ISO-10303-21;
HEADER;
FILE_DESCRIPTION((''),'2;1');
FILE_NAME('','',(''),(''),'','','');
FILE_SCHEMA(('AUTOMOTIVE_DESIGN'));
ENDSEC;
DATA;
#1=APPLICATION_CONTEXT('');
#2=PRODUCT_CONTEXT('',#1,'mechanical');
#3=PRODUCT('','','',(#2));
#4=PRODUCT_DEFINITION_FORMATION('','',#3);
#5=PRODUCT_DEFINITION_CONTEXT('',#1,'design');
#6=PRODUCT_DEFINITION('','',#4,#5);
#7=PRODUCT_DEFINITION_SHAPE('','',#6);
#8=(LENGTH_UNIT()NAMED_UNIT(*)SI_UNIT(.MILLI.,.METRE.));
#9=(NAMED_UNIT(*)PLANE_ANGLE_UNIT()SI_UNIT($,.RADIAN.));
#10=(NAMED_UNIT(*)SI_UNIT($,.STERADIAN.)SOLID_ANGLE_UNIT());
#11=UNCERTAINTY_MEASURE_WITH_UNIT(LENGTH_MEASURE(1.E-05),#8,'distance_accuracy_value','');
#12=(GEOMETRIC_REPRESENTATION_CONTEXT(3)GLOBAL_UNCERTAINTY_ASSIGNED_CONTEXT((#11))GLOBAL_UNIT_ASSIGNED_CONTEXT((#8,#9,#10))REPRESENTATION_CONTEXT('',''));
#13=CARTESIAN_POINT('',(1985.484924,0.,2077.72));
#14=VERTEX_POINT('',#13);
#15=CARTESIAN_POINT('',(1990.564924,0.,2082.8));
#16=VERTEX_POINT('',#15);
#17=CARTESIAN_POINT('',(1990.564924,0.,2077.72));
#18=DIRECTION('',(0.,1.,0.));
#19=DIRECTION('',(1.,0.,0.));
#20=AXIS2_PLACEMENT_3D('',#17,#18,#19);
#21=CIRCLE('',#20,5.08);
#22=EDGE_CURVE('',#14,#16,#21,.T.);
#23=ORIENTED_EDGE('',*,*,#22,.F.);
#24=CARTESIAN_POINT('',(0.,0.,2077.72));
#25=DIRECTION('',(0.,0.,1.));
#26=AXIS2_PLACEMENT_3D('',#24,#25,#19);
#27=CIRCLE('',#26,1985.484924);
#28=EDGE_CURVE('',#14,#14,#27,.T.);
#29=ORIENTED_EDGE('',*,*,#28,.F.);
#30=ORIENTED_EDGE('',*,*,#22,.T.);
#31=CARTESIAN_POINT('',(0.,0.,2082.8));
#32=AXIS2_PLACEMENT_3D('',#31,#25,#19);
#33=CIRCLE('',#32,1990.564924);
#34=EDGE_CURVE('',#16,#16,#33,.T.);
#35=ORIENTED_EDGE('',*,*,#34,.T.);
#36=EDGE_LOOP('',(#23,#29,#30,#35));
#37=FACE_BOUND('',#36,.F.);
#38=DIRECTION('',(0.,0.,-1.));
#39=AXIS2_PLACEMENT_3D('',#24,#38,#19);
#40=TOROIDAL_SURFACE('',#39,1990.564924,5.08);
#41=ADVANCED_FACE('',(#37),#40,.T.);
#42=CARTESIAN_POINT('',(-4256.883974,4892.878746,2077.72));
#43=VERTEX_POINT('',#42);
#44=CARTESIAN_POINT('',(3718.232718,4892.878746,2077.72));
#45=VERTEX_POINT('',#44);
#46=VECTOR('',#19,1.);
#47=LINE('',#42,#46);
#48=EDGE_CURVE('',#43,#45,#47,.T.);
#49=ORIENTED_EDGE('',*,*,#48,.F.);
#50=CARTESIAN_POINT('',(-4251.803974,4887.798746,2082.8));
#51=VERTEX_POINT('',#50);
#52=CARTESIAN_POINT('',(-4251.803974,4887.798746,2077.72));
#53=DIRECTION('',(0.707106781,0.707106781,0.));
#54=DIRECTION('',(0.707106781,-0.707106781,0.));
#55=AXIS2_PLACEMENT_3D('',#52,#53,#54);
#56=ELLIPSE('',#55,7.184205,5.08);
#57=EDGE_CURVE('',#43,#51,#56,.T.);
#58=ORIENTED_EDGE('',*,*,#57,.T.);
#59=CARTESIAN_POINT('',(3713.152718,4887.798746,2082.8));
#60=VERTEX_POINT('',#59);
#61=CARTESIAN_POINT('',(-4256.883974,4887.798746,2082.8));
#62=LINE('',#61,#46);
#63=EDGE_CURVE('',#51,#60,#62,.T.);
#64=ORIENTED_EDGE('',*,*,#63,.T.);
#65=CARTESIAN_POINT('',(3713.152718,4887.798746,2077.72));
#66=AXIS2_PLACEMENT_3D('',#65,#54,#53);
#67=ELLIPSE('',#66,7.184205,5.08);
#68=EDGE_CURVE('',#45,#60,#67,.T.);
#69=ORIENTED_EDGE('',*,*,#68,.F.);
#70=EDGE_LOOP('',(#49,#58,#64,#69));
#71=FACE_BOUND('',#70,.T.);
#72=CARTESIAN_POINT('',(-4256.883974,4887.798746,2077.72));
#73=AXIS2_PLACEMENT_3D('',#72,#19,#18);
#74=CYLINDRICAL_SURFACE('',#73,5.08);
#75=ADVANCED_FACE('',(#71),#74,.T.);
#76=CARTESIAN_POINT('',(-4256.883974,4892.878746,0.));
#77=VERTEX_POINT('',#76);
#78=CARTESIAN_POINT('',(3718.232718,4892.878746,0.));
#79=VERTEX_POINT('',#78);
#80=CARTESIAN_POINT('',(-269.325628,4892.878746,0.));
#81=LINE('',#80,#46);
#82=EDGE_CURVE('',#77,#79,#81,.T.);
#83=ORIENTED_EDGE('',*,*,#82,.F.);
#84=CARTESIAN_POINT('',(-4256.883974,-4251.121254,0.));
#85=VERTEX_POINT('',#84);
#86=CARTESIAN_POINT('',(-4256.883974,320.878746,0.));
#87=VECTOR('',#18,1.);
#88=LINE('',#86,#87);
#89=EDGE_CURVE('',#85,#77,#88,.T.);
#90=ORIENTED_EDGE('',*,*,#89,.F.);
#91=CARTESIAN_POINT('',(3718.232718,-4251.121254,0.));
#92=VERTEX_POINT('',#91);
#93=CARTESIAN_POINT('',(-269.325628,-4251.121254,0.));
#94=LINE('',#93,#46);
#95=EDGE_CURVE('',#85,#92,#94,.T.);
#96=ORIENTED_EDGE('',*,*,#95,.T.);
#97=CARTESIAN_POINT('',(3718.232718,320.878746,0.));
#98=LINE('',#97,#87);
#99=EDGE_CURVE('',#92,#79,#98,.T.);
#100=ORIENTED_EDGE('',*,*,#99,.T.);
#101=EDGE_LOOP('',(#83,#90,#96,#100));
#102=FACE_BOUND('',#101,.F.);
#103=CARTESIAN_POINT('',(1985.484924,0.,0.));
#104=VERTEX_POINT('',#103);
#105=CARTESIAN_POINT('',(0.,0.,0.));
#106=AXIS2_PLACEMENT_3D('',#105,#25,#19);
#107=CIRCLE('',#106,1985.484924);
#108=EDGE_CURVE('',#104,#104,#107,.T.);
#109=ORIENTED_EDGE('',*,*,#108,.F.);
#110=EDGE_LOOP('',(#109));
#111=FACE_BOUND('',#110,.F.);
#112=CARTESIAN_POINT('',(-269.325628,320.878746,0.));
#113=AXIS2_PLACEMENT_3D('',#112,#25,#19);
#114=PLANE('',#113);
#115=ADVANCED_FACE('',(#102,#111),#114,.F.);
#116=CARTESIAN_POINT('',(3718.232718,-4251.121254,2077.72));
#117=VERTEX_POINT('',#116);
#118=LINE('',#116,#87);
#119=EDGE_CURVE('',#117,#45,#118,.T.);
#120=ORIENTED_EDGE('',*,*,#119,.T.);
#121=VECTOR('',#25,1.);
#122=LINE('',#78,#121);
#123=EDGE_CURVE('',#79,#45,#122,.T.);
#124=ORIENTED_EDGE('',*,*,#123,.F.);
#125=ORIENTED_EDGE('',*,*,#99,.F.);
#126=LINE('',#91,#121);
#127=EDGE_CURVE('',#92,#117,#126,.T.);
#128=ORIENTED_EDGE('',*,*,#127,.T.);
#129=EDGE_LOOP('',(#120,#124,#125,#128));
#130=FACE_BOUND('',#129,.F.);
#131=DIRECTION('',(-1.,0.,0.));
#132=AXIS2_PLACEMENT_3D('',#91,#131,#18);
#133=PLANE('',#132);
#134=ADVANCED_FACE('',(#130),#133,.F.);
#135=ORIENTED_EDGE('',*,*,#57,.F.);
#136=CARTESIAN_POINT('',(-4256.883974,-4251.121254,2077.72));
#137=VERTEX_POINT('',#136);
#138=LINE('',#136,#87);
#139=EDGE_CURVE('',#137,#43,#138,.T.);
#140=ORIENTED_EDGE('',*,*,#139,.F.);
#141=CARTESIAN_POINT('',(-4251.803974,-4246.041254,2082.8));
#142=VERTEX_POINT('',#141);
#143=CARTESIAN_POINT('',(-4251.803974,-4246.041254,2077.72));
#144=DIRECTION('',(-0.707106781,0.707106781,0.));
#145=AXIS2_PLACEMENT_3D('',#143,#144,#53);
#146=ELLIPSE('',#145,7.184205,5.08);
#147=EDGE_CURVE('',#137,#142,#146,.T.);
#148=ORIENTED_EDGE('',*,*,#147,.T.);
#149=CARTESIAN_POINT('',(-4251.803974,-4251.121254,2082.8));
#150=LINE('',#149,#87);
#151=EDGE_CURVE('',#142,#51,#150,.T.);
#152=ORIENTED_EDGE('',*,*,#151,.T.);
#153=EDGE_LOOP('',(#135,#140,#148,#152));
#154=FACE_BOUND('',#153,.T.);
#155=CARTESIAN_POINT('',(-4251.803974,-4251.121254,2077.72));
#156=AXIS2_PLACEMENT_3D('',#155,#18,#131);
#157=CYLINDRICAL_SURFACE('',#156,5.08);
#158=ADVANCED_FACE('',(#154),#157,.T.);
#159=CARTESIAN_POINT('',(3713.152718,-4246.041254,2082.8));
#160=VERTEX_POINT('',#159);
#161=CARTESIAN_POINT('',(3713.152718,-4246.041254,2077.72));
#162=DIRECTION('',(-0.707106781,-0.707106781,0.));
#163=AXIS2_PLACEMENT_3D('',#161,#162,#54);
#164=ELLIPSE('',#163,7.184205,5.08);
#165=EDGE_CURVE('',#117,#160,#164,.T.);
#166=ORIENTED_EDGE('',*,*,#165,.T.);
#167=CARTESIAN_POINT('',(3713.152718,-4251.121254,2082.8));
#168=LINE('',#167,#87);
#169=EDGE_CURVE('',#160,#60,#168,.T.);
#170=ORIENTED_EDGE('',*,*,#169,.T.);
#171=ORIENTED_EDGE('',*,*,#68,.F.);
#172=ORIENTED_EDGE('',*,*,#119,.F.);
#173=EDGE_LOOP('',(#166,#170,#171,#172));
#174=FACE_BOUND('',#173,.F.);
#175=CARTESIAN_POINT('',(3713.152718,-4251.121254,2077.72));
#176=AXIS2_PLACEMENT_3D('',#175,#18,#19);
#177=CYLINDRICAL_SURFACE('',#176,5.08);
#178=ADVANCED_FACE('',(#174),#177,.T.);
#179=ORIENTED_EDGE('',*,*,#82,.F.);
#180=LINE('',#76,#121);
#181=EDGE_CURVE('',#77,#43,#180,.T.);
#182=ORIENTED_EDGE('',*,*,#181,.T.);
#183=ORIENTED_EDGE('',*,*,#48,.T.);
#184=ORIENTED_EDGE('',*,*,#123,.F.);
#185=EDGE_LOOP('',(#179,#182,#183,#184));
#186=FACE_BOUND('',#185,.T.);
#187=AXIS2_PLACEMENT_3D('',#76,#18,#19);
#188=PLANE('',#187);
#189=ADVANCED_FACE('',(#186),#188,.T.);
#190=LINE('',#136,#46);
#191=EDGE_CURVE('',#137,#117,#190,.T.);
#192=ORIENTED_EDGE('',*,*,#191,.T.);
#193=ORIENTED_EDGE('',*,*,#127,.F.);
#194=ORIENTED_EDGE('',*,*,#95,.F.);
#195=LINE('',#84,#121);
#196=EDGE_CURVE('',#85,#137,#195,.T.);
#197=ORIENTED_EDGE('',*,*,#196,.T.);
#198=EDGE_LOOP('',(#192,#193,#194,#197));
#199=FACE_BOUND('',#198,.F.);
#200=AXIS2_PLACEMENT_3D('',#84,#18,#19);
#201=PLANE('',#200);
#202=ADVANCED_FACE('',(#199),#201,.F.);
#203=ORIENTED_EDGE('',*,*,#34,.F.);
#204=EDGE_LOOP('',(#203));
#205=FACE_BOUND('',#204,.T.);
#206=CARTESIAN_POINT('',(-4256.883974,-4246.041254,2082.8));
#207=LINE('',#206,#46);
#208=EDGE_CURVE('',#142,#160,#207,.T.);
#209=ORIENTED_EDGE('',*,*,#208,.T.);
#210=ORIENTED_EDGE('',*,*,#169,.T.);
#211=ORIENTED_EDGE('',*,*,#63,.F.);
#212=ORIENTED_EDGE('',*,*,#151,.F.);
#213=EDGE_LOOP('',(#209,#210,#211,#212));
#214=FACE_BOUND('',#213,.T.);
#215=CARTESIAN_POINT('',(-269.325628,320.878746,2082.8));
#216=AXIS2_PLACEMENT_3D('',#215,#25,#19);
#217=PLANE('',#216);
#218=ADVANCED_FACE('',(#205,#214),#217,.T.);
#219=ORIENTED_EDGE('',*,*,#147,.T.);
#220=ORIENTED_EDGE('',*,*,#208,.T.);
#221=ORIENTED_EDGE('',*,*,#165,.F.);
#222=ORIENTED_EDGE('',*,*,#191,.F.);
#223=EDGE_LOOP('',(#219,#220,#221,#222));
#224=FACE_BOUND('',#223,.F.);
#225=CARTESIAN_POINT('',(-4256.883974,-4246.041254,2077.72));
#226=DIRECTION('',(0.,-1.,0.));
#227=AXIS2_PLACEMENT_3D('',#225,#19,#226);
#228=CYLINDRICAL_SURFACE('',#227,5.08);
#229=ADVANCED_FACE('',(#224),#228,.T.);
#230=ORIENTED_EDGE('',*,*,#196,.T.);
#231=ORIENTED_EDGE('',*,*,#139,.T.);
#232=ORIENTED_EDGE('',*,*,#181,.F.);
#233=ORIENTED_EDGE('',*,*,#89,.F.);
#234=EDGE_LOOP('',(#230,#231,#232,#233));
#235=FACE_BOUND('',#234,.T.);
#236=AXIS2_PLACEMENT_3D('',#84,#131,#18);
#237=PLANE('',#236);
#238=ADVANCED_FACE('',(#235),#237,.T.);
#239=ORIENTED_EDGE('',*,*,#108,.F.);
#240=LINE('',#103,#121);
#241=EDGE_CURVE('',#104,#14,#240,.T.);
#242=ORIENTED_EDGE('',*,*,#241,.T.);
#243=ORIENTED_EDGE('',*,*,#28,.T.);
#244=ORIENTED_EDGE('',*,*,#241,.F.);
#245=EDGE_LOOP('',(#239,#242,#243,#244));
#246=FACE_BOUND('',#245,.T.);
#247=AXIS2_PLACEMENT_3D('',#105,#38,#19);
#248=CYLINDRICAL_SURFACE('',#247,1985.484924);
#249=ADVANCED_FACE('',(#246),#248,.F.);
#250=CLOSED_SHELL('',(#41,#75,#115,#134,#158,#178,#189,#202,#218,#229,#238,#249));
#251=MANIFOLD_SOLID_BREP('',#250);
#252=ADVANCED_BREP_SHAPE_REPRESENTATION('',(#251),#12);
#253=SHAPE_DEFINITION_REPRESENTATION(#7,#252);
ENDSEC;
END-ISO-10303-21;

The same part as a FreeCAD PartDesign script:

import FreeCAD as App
import Part
import Sketcher
Q = App.Units.Quantity


def edges_at(feature, points):
    """Names of the edges that pass closest to the given points."""
    edges = feature.Shape.Edges
    near = lambda p: min(range(len(edges)), key=lambda i: edges[i].distToShape(Part.Vertex(*p))[0])
    return sorted({f"Edge{near(p) + 1}" for p in points})


def add_polygon(sketch, points):
    """Adds a closed chain of lines whose ends are joined by coincident constraints."""
    first, n = sketch.GeometryCount, len(points)
    for a, b in zip(points, points[1:] + points[:1]):
        sketch.addGeometry(Part.LineSegment(App.Vector(*a, 0), App.Vector(*b, 0)), False)
    for i in range(n):
        sketch.addConstraint(Sketcher.Constraint("Coincident", first + i, 2, first + (i + 1) % n, 1))

doc = App.newDocument("Part")
body = doc.addObject("PartDesign::Body", "Body")

sketch1 = body.newObject("Sketcher::SketchObject", "Sketch")
sketch1.AttachmentSupport = (doc.getObject("XY_Plane"), [""])
sketch1.MapMode = "FlatFace"
add_polygon(sketch1, [(-4256.883974, 4892.878746), (-4256.883974, -4251.121254), (3718.232718, -4251.121254), (3718.232718, 4892.878746)])
sketch1.addGeometry(Part.Circle(App.Vector(0, 0, 0), App.Vector(0, 0, 1), 1985.484924), False)
sketch1.addConstraint(Sketcher.Constraint("Vertical", 0))
sketch1.addConstraint(Sketcher.Constraint("Horizontal", 1))
sketch1.addConstraint(Sketcher.Constraint("Vertical", 2))
sketch1.addConstraint(Sketcher.Constraint("Horizontal", 3))
sketch1.addConstraint(Sketcher.Constraint("Coincident", 4, 3, -1, 1))
sketch1.addConstraint(Sketcher.Constraint("DistanceY", 0, 2, 0, 1, Q("360 in")))
sketch1.addConstraint(Sketcher.Constraint("Diameter", 4, 3970.969848))
sketch1.addConstraint(Sketcher.Constraint("DistanceX", 1, 1, 1, 2, 7975.116693))
sketch1.addConstraint(Sketcher.Constraint("DistanceX", -1, 1, 1, 2, 3718.232718))
sketch1.addConstraint(Sketcher.Constraint("DistanceY", 0, 2, -1, 1, 4251.121254))
pad1 = body.newObject("PartDesign::Pad", "Pad")
pad1.Profile = sketch1
pad1.Length = Q("82 in")
doc.recompute()

fillet = body.newObject("PartDesign::Fillet", "Fillet")
fillet.Base = (pad1, edges_at(pad1, [
    (-269.326, 4892.879, 2082.8),
    (-4256.884, 320.879, 2082.8),
    (-269.326, -4251.121, 2082.8),
    (3718.233, 320.879, 2082.8),
    (-1985.485, 0, 2082.8),
]))
fillet.Radius = Q("0.2 in")

doc.recompute()
